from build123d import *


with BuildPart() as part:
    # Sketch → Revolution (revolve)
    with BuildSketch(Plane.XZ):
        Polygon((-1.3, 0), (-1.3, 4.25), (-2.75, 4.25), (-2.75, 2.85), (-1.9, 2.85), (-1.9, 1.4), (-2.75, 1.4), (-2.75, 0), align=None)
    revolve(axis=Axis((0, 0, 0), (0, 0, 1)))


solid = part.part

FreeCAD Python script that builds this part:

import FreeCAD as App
import Part
import Sketcher

V = App.Vector

doc = App.newDocument("Part")
body = doc.addObject("PartDesign::Body", "Body")

sketch1 = body.newObject("Sketcher::SketchObject", "Sketch")
sketch1.AttachmentSupport = (doc.getObject("XZ_Plane"), [""])
sketch1.MapMode = "FlatFace"
sketch1.addGeometry([
    Part.LineSegment(V(-1.3, 0, 0), V(-1.3, 4.2, 0)),
    Part.LineSegment(V(-1.3, 4.2, 0), V(-2.8, 4.2, 0)),
    Part.LineSegment(V(-2.8, 4.2, 0), V(-2.8, 2.9, 0)),
    Part.LineSegment(V(-2.8, 2.9, 0), V(-1.9, 2.9, 0)),
    Part.LineSegment(V(-1.9, 2.9, 0), V(-1.9, 1.4, 0)),
    Part.LineSegment(V(-1.9, 1.4, 0), V(-2.8, 1.4, 0)),
    Part.LineSegment(V(-2.8, 1.4, 0), V(-2.8, 0, 0)),
    Part.LineSegment(V(-2.8, 0, 0), V(-1.3, 0, 0)),
], False)
sketch1.addConstraint([
    Sketcher.Constraint("Coincident", 0, 2, 1, 1),
    Sketcher.Constraint("Coincident", 1, 2, 2, 1),
    Sketcher.Constraint("Coincident", 2, 2, 3, 1),
    Sketcher.Constraint("Coincident", 3, 2, 4, 1),
    Sketcher.Constraint("Coincident", 4, 2, 5, 1),
    Sketcher.Constraint("Coincident", 5, 2, 6, 1),
    Sketcher.Constraint("Coincident", 6, 2, 7, 1),
    Sketcher.Constraint("Coincident", 7, 2, 0, 1),
    Sketcher.Constraint("Vertical", 0),
    Sketcher.Constraint("Horizontal", 1),
    Sketcher.Constraint("Vertical", 2),
    Sketcher.Constraint("Horizontal", 3),
    Sketcher.Constraint("Vertical", 4),
    Sketcher.Constraint("Horizontal", 5),
    Sketcher.Constraint("Vertical", 6),
    Sketcher.Constraint("Horizontal", 7),
    Sketcher.Constraint("PointOnObject", 6, 2, -1),
    Sketcher.Constraint("Vertical", 2, 2, 5, 2),
    Sketcher.Constraint("Equal", 7, 4),
    Sketcher.Constraint("Equal", 2, 6),
    Sketcher.Constraint("DistanceY", 2, 2, 2, 1, 1.4),
    Sketcher.Constraint("DistanceX", 1, 2, 1, 1, 1.45),
    Sketcher.Constraint("DistanceX", 3, 1, 3, 2, 0.85),
    Sketcher.Constraint("DistanceX", 0, 2, -1, 1, 1.3),
])
revolution = body.newObject("PartDesign::Revolution", "Revolution")
revolution.Profile = sketch1
revolution.ReferenceAxis = (sketch1, ["V_Axis"])
revolution.Angle = 360

doc.recompute()
